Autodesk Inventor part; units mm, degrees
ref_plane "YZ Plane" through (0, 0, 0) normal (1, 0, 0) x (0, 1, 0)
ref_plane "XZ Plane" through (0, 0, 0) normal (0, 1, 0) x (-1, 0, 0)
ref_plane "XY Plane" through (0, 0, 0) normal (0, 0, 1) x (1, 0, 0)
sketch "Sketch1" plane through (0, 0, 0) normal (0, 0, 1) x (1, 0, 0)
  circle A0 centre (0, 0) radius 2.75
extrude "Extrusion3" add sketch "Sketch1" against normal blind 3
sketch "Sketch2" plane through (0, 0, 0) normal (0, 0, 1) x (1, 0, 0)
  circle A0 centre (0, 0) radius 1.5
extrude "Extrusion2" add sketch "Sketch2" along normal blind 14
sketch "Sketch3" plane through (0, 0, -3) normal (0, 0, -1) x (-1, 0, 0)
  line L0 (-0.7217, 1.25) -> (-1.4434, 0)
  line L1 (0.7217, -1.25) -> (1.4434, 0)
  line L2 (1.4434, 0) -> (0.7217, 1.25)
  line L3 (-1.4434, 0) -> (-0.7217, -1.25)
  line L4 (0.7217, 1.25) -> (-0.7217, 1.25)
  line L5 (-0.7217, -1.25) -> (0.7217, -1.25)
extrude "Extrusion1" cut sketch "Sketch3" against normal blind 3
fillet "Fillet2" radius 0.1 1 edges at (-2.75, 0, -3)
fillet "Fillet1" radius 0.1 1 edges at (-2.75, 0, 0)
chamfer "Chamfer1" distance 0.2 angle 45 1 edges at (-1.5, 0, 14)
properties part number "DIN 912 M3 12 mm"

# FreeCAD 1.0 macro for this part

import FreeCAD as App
import Part
import Sketcher

V = App.Vector
Q = App.Units.Quantity


def edges_at(feature, points):
    """Names of the edges that pass closest to the given points."""
    edges = feature.Shape.Edges
    near = lambda p: min(range(len(edges)), key=lambda i: edges[i].distToShape(Part.Vertex(*p))[0])
    return sorted({f"Edge{near(p) + 1}" for p in points})

doc = App.newDocument("Part")
body = doc.addObject("PartDesign::Body", "Body")

# Sketch on XY plane
sketch1 = body.newObject("Sketcher::SketchObject", "Sketch")
sketch1.AttachmentSupport = (doc.getObject("XY_Plane"), [""])
sketch1.MapMode = "FlatFace"
sketch1.addGeometry(Part.Circle(V(0, 0, 0), V(0, 0, 1), 2.8), False)
sketch1.addConstraint([
    Sketcher.Constraint("Coincident", 0, 3, -1, 1),
    Sketcher.Constraint("Diameter", 0, Q("5.5 mm")),
])
pad1 = body.newObject("PartDesign::Pad", "Pad")
pad1.Profile = sketch1
pad1.Length = 3
pad1.Reversed = True

# Sketch on XY plane
sketch2 = body.newObject("Sketcher::SketchObject", "Sketch001")
sketch2.AttachmentSupport = (doc.getObject("XY_Plane"), [""])
sketch2.MapMode = "FlatFace"
sketch2.addGeometry(Part.Circle(V(0, 0, 0), V(0, 0, 1), 1.5), False)
sketch2.addConstraint([
    Sketcher.Constraint("Coincident", 0, 3, -1, 1),
    Sketcher.Constraint("Diameter", 0, Q("3 mm")),
])
pad2 = body.newObject("PartDesign::Pad", "Pad001")
pad2.Profile = sketch2
pad2.Length = 14

# Sketch on XY plane
sketch3 = body.newObject("Sketcher::SketchObject", "Sketch002")
sketch3.AttachmentSupport = (doc.getObject("XY_Plane"), [""])
sketch3.MapMode = "FlatFace"
sketch3.AttachmentOffset = App.Placement(V(0, 0, -3), App.Rotation())
sketch3.addGeometry([
    Part.LineSegment(V(-0.7, 1.2, 0), V(0.7, 1.2, 0)),  # 0
    Part.LineSegment(V(0.7, 1.2, 0), V(1.4, 0, 0)),  # 1
    Part.LineSegment(V(1.4, 0, 0), V(0.7, -1.2, 0)),  # 2
    Part.LineSegment(V(0.7, -1.2, 0), V(-0.7, -1.2, 0)),  # 3
    Part.LineSegment(V(-0.7, -1.2, 0), V(-1.4, 0, 0)),  # 4
    Part.LineSegment(V(-1.4, 0, 0), V(-0.7, 1.2, 0)),  # 5
], False)
sketch3.addConstraint([
    Sketcher.Constraint("Coincident", 0, 2, 1, 1),
    Sketcher.Constraint("Coincident", 1, 2, 2, 1),
    Sketcher.Constraint("Coincident", 2, 2, 3, 1),
    Sketcher.Constraint("Coincident", 3, 2, 4, 1),
    Sketcher.Constraint("Coincident", 4, 2, 5, 1),
    Sketcher.Constraint("Coincident", 5, 2, 0, 1),
    Sketcher.Constraint("Horizontal", 0),
    Sketcher.Constraint("Horizontal", 3),
    Sketcher.Constraint("Symmetric", 0, 2, 3, 2, -1, 1),
    Sketcher.Constraint("Symmetric", 1, 2, 4, 2, -1, 1),
    Sketcher.Constraint("PointOnObject", 1, 2, -1),
    Sketcher.Constraint("Parallel", 2, 5),
    Sketcher.Constraint("Vertical", 0, 2, 2, 2),
    Sketcher.Constraint("Angle", 1, Q("-59.9996 deg")),
    Sketcher.Constraint("DistanceY", 2, 2, 0, 2, Q("2.5 mm")),
    Sketcher.Constraint("DistanceX", 0, 1, 0, 2, Q("1.4434 mm")),
])
pocket1 = body.newObject("PartDesign::Pocket", "Pocket")
pocket1.Profile = sketch3
pocket1.Length = 3
pocket1.Reversed = True
doc.recompute()

fillet = body.newObject("PartDesign::Fillet", "Fillet")
fillet.Base = (pocket1, edges_at(pocket1, [(-2.75, 0, -3)]))
fillet.Radius = 0.1
doc.recompute()

fillet2 = body.newObject("PartDesign::Fillet", "Fillet001")
fillet2.Base = (fillet, edges_at(fillet, [(-2.75, 0, 0)]))
fillet2.Radius = 0.1
doc.recompute()

chamfer = body.newObject("PartDesign::Chamfer", "Chamfer")
chamfer.Base = (fillet2, edges_at(fillet2, [(-1.5, 0, 14)]))
chamfer.Size = 0.2

doc.recompute()
